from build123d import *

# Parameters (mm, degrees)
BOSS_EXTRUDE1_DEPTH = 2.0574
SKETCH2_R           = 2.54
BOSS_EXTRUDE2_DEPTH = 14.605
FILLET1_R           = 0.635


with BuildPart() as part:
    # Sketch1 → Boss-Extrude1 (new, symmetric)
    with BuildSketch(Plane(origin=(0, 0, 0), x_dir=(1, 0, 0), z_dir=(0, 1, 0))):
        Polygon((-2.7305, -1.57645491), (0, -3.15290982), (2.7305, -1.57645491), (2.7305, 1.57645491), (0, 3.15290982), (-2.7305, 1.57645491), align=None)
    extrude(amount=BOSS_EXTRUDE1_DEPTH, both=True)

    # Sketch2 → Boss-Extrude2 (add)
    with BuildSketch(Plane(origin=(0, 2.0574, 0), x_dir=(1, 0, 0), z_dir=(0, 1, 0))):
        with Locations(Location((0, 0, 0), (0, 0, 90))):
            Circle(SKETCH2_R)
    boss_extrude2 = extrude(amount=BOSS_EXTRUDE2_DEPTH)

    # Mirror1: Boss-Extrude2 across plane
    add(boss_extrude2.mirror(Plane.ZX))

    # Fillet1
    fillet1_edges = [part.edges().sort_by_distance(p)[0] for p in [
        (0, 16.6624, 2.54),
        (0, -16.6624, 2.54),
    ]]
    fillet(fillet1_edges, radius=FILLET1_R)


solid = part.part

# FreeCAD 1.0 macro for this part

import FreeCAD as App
import Part
import Sketcher

V = App.Vector
Q = App.Units.Quantity


def edges_at(feature, points):
    """Names of the edges that pass closest to the given points."""
    edges = feature.Shape.Edges
    near = lambda p: min(range(len(edges)), key=lambda i: edges[i].distToShape(Part.Vertex(*p))[0])
    return sorted({f"Edge{near(p) + 1}" for p in points})

doc = App.newDocument("Part")
params = doc.addObject("Spreadsheet::Sheet", "Params")
for row, (alias, value) in enumerate([
    ("pad1_length", "0.162 in"),
    ("sketch2_diameter", "0.2 in"),
    ("pad2_length", "0.575 in"),
    ("fillet_radius", "0.025 in"),
], start=1):
    params.set(f"A{row}", alias)
    params.set(f"B{row}", "=" + value)
    params.setAlias(f"B{row}", alias)

body = doc.addObject("PartDesign::Body", "Body")

sketch1 = body.newObject("Sketcher::SketchObject", "Sketch")
sketch1.AttachmentSupport = (doc.getObject("XZ_Plane"), [""])
sketch1.MapMode = "FlatFace"
sketch1.addGeometry(Part.LineSegment(V(-2.7, 1.6, 0), V(0, 3.2, 0)), False)
sketch1.addGeometry(Part.LineSegment(V(0, 3.2, 0), V(2.7, 1.6, 0)), False)
sketch1.addGeometry(Part.LineSegment(V(2.7, 1.6, 0), V(2.7, -1.6, 0)), False)
sketch1.addGeometry(Part.LineSegment(V(2.7, -1.6, 0), V(0, -3.2, 0)), False)
sketch1.addGeometry(Part.LineSegment(V(0, -3.2, 0), V(-2.7, -1.6, 0)), False)
sketch1.addGeometry(Part.LineSegment(V(-2.7, -1.6, 0), V(-2.7, 1.6, 0)), False)
sketch1.addConstraint(Sketcher.Constraint("Coincident", 0, 2, 1, 1))
sketch1.addConstraint(Sketcher.Constraint("Coincident", 1, 2, 2, 1))
sketch1.addConstraint(Sketcher.Constraint("Coincident", 2, 2, 3, 1))
sketch1.addConstraint(Sketcher.Constraint("Coincident", 3, 2, 4, 1))
sketch1.addConstraint(Sketcher.Constraint("Coincident", 4, 2, 5, 1))
sketch1.addConstraint(Sketcher.Constraint("Coincident", 5, 2, 0, 1))
sketch1.addConstraint(Sketcher.Constraint("Vertical", 2))
sketch1.addConstraint(Sketcher.Constraint("Vertical", 5))
sketch1.addConstraint(Sketcher.Constraint("Symmetric", 0, 2, 3, 2, -1, 1))
sketch1.addConstraint(Sketcher.Constraint("Symmetric", 1, 2, 4, 2, -1, 1))
sketch1.addConstraint(Sketcher.Constraint("PointOnObject", 0, 2, -2))
sketch1.addConstraint(Sketcher.Constraint("Parallel", 0, 3))
sketch1.addConstraint(Sketcher.Constraint("Horizontal", 2, 2, 4, 2))
sketch1.addConstraint(Sketcher.Constraint("Angle", 0, Q("30 deg")))
sketch1.addConstraint(Sketcher.Constraint("DistanceX", 4, 2, 2, 2, Q("0.215 in")))
sketch1.addConstraint(Sketcher.Constraint("DistanceY", 2, 2, 2, 1, Q("3.15291 mm")))
pad1 = body.newObject("PartDesign::Pad", "Pad")
pad1.Profile = sketch1
pad1.setExpression("Length", "Params.pad1_length")
pad1.Midplane = True

sketch2 = body.newObject("Sketcher::SketchObject", "Sketch001")
sketch2.AttachmentSupport = (doc.getObject("XZ_Plane"), [""])
sketch2.MapMode = "FlatFace"
sketch2.AttachmentOffset = App.Placement(V(0, 0, -0.081 * 25.4), App.Rotation())
sketch2.addGeometry(Part.Circle(V(0, 0, 0), V(0, 0, 1), 2.5), False)
sketch2.addConstraint(Sketcher.Constraint("Coincident", 0, 3, -1, 1))
sketch2.addConstraint(Sketcher.Constraint("Diameter", 0, Q("0.2 in")))
sketch2.setExpression("Constraints[1]", "Params.sketch2_diameter")
pad2 = body.newObject("PartDesign::Pad", "Pad001")
pad2.Profile = sketch2
pad2.setExpression("Length", "Params.pad2_length")
pad2.Reversed = True
doc.recompute()

mirrored = body.newObject("PartDesign::Mirrored", "Mirrored")
mirrored.Originals = [pad2]
mirrored.MirrorPlane = (doc.getObject("XZ_Plane"), [""])
body.Tip = mirrored
doc.recompute()

fillet = body.newObject("PartDesign::Fillet", "Fillet")
fillet.Base = (mirrored, edges_at(mirrored, [(0, 16.662, 2.54), (0, -16.662, 2.54)]))
fillet.setExpression("Radius", "Params.fillet_radius")

doc.recompute()
